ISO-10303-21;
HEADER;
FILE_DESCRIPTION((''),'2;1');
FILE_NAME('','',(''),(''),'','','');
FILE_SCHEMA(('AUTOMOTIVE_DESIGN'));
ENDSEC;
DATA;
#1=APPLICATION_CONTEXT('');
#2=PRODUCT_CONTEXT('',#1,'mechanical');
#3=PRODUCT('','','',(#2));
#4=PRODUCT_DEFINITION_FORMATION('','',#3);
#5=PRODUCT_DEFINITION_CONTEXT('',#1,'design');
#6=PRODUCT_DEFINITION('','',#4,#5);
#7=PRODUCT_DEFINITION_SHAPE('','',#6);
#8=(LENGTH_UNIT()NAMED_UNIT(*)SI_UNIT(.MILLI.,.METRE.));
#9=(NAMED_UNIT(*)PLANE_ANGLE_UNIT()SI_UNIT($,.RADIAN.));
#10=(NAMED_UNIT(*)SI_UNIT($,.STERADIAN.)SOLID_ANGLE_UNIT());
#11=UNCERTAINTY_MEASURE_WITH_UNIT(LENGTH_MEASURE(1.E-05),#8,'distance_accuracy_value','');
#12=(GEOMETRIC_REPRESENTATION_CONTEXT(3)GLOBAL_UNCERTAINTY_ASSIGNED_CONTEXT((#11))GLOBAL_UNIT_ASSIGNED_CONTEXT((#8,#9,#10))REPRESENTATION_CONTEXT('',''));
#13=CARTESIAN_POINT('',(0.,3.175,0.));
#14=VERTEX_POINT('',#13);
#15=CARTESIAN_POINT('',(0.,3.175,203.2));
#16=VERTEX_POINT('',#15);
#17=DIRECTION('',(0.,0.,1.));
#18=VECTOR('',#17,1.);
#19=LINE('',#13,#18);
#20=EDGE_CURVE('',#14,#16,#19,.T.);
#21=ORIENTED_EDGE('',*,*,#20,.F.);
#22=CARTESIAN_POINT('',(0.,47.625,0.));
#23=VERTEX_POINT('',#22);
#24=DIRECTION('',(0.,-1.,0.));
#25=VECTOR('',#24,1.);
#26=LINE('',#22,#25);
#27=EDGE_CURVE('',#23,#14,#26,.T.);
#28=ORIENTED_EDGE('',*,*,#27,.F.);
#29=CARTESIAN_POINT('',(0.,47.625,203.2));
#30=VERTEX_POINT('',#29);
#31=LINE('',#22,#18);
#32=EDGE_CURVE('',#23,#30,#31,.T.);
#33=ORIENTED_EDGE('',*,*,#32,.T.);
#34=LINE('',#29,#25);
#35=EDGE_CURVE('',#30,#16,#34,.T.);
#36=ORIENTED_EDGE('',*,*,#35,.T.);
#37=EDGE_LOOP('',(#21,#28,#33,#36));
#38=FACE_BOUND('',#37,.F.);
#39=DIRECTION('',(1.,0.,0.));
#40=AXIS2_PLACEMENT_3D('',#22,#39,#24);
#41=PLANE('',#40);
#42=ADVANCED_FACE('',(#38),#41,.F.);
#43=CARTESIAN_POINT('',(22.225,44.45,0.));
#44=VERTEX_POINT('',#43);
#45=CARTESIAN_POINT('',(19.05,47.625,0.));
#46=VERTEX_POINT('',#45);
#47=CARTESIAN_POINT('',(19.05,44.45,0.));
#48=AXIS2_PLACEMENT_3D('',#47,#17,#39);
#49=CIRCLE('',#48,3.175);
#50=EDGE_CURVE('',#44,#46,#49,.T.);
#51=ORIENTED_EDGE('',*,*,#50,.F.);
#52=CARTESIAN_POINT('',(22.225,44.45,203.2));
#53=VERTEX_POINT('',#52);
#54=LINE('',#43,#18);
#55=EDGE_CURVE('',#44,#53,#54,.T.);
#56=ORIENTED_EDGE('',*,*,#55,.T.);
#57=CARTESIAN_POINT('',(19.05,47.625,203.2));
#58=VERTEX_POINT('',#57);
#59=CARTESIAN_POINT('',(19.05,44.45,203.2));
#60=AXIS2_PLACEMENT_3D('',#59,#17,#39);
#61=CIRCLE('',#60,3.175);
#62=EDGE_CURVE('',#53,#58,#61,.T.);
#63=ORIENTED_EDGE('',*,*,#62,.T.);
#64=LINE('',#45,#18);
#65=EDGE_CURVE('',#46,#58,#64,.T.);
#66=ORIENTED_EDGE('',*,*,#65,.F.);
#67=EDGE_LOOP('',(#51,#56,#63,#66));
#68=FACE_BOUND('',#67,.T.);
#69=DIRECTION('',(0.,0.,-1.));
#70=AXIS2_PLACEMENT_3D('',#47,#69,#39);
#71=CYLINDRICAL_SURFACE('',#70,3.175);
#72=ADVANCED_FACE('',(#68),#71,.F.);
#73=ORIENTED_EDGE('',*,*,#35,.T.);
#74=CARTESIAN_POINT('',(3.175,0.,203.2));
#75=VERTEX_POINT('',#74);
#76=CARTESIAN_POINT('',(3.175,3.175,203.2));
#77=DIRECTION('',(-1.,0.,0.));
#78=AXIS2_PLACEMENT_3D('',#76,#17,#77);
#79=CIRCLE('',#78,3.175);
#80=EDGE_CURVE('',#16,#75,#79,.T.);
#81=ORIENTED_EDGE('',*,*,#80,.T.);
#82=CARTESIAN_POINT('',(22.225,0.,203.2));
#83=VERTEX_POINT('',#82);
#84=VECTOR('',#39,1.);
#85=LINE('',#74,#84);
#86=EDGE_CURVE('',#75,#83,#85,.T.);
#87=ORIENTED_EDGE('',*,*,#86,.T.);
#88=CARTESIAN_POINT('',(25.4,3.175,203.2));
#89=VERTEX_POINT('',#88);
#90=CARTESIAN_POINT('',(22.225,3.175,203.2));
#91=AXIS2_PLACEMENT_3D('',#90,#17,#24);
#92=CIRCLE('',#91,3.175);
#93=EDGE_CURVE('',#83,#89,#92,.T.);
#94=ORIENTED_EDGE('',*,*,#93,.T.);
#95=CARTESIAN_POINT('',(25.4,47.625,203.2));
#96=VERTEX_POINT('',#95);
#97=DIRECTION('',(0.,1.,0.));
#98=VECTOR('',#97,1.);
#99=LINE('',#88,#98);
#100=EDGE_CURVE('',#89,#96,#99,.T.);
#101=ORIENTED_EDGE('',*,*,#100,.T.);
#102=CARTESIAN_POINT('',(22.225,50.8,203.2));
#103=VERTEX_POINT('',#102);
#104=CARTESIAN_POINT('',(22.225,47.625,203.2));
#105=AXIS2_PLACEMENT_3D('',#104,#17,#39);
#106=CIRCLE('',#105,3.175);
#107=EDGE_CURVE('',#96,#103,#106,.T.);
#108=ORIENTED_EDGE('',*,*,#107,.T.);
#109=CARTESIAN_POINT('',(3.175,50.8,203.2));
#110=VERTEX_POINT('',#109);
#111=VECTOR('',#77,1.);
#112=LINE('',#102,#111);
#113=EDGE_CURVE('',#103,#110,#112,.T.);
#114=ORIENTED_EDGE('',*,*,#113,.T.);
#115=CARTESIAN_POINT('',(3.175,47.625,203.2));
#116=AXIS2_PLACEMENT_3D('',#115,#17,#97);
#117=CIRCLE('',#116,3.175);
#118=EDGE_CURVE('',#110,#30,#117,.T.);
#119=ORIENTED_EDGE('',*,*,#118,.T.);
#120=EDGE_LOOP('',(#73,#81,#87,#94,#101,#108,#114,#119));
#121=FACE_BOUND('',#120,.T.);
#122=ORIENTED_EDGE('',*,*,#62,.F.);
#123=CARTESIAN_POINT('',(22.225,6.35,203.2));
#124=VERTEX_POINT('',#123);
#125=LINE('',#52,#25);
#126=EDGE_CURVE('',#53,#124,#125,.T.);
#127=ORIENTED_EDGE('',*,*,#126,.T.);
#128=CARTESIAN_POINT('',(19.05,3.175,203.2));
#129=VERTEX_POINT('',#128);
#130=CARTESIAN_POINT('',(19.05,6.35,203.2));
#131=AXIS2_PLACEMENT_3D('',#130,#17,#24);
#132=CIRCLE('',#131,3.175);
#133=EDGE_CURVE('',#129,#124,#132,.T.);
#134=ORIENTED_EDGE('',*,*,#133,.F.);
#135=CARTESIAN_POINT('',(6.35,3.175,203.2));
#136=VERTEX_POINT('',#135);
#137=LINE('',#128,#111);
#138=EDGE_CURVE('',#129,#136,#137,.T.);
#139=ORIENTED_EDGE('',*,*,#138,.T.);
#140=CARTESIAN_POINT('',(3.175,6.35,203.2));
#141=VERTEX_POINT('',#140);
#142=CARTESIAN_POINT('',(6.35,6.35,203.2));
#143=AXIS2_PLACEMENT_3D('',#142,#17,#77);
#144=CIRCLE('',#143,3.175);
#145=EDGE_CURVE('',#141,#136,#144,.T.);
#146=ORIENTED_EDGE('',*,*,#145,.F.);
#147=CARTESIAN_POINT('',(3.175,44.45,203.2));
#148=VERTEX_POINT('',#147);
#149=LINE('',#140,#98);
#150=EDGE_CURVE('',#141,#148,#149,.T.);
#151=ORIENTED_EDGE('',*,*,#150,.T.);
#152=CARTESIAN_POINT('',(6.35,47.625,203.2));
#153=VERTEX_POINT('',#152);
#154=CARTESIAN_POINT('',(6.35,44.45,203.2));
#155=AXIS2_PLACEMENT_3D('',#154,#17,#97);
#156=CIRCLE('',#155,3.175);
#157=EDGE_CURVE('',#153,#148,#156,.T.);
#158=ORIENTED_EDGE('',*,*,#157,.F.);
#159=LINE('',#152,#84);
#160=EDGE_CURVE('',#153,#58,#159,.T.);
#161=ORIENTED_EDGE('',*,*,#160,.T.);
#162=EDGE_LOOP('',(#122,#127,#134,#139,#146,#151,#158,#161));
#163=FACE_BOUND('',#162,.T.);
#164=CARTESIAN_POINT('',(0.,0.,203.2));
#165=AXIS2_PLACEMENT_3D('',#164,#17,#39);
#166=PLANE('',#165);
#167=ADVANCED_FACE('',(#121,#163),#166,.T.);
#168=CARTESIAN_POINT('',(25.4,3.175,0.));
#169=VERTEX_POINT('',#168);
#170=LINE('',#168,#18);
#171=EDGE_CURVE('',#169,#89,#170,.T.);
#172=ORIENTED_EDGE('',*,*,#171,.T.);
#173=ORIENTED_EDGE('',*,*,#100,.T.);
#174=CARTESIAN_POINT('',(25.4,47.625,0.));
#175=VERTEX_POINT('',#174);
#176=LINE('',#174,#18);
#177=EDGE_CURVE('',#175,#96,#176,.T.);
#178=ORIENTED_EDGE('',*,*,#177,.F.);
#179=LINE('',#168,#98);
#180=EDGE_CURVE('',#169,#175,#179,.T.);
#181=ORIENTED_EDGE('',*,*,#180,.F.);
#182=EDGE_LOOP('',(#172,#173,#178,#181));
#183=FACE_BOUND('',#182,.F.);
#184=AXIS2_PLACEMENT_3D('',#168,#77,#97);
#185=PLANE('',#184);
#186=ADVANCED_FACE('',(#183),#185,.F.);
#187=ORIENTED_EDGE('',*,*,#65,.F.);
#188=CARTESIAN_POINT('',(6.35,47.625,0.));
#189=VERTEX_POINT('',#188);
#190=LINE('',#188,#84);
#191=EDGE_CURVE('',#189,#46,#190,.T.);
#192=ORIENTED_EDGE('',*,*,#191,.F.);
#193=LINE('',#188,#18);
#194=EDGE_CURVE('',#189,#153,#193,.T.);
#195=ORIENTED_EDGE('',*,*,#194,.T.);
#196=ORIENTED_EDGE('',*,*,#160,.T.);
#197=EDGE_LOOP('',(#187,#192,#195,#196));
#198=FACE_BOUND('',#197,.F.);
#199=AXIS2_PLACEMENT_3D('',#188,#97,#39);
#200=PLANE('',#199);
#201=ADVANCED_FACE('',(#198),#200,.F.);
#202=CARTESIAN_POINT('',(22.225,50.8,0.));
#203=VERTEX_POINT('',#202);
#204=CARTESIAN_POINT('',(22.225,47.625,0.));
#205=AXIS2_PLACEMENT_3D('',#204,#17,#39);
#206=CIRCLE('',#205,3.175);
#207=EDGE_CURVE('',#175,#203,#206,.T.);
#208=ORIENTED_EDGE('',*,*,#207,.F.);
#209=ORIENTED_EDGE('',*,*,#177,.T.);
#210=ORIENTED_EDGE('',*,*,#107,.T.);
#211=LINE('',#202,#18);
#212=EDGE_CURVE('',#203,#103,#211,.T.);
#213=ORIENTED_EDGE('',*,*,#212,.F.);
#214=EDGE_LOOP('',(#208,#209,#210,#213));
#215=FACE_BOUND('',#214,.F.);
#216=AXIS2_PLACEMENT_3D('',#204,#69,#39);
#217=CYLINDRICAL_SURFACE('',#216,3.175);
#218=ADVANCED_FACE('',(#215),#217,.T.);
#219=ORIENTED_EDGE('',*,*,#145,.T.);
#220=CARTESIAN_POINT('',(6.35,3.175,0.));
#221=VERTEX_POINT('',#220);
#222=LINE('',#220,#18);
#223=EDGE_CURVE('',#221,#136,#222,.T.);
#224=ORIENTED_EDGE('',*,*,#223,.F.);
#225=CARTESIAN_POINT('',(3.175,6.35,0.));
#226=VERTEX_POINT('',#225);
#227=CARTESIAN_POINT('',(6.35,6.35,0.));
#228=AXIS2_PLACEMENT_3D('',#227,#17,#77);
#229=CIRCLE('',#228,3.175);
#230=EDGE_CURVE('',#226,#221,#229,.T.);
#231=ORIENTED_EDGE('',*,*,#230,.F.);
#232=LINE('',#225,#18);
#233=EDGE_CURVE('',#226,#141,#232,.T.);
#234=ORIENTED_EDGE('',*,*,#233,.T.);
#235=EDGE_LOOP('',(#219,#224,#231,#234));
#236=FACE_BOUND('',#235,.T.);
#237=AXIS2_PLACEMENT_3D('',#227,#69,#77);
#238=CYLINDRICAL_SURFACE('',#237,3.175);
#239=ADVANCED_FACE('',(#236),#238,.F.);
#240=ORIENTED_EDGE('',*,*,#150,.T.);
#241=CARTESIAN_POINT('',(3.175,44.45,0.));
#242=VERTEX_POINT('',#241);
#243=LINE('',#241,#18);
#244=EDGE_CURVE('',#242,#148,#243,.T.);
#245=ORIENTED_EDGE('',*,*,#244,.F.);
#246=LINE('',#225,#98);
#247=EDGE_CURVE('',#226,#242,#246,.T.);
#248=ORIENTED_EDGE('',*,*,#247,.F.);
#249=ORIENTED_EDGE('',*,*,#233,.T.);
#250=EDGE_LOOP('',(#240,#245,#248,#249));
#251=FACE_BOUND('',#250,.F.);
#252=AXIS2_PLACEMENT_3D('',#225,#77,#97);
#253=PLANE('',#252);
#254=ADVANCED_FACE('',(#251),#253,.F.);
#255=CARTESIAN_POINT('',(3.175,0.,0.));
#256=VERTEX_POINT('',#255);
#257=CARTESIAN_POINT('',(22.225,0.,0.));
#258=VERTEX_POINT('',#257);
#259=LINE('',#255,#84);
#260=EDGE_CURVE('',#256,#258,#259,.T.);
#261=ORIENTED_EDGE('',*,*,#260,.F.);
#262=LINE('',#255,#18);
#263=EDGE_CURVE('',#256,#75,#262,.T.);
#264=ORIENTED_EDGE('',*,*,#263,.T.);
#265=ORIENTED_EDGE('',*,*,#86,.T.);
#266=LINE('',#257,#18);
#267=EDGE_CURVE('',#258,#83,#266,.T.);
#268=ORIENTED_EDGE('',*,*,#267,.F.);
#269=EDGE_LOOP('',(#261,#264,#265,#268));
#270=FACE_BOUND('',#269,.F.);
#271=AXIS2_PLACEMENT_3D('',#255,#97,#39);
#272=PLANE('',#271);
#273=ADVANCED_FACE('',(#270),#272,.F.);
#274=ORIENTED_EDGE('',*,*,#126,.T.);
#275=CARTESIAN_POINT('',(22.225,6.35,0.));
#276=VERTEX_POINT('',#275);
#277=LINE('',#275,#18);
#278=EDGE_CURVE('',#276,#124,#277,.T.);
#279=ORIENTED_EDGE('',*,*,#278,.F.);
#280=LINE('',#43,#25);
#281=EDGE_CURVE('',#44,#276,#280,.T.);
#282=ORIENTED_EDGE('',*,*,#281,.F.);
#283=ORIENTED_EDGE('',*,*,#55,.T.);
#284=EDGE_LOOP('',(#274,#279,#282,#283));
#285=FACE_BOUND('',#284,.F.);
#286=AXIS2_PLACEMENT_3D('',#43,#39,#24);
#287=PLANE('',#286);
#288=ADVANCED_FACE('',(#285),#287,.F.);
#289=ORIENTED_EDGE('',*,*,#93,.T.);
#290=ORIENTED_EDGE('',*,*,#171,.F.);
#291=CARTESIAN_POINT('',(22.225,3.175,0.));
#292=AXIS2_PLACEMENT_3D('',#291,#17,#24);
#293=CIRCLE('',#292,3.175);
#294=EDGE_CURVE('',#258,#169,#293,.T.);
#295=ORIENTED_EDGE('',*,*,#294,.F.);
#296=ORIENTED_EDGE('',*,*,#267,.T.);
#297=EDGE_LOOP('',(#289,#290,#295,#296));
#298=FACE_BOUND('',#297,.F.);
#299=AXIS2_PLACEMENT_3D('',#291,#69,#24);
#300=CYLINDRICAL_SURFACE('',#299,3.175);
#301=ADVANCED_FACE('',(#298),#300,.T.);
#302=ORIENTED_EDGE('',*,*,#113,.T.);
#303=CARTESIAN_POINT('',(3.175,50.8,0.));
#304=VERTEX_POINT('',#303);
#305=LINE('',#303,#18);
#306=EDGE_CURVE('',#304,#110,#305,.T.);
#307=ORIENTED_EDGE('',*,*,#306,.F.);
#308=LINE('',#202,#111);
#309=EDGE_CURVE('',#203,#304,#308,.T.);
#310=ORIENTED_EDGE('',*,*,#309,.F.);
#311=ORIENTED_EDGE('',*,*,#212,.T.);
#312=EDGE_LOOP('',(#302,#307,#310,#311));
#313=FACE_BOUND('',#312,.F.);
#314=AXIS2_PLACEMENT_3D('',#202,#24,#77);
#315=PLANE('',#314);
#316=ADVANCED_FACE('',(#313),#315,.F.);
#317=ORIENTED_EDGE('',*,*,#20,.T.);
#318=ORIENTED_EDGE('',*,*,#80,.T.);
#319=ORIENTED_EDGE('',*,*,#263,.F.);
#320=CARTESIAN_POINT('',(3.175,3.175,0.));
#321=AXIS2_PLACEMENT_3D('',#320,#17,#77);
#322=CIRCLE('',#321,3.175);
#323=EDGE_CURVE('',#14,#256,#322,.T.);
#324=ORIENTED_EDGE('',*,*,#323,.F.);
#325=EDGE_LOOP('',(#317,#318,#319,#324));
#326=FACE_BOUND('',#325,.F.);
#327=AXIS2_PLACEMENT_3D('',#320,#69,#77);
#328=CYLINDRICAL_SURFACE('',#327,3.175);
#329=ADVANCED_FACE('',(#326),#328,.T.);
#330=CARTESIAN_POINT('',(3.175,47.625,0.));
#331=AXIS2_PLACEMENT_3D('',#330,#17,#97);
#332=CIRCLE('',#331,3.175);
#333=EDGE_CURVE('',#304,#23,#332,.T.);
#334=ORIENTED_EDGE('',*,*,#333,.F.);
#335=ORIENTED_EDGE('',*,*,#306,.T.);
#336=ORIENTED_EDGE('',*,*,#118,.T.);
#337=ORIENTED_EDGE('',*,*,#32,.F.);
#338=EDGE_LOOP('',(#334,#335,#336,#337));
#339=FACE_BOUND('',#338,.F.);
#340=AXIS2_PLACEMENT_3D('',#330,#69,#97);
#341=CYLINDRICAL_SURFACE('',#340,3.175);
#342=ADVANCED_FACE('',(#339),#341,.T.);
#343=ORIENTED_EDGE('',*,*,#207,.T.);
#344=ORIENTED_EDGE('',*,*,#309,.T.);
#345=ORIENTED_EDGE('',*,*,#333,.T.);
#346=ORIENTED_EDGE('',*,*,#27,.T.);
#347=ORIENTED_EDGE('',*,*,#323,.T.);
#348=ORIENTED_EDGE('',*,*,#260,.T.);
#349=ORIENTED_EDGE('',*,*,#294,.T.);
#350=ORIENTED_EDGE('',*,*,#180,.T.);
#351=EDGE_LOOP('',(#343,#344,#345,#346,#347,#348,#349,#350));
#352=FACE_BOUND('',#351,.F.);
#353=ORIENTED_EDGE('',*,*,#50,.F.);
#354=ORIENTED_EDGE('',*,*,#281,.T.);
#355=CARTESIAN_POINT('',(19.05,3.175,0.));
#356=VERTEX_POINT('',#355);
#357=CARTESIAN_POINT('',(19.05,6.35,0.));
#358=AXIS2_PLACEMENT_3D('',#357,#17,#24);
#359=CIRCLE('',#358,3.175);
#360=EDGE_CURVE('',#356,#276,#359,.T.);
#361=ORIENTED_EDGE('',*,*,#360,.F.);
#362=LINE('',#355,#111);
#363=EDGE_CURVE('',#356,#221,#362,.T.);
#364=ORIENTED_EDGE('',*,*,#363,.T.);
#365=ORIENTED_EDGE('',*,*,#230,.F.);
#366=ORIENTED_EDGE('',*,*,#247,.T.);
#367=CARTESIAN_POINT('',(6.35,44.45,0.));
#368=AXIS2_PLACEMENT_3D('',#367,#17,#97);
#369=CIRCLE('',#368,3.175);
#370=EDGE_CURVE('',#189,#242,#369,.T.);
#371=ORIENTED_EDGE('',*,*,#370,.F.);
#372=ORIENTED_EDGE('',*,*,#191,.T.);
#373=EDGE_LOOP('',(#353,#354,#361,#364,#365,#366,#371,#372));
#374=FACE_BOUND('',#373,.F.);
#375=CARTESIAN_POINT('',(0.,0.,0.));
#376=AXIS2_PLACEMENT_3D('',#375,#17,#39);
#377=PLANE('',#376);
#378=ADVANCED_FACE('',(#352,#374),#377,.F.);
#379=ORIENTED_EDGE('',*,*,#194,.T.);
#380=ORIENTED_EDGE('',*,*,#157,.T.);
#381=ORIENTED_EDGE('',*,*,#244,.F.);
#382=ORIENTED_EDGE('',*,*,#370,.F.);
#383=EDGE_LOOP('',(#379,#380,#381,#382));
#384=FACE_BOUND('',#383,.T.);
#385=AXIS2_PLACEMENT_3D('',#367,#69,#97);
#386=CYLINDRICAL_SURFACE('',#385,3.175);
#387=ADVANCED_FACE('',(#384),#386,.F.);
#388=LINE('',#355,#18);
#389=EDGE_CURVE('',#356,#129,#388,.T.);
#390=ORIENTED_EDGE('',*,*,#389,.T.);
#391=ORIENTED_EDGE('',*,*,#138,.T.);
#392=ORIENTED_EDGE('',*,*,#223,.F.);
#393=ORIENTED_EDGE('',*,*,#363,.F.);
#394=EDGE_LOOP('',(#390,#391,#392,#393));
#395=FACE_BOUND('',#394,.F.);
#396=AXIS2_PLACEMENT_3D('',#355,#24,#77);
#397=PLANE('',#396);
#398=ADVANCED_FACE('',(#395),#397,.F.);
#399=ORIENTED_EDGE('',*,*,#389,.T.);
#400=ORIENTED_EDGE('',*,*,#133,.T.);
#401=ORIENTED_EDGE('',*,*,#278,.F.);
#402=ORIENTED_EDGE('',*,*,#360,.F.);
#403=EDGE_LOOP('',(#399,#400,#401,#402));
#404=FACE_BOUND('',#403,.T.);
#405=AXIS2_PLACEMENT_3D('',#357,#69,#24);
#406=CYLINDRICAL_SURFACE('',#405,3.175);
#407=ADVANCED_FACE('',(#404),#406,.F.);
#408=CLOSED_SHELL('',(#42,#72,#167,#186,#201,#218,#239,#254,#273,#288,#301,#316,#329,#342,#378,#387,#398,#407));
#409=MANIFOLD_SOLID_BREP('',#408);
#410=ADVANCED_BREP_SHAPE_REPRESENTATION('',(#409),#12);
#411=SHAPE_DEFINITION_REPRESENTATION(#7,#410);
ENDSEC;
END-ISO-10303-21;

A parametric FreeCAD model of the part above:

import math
import FreeCAD as App
import Part
import Sketcher
from FreeCAD import Vector
Q = App.Units.Quantity

doc = App.newDocument("Part")
params = doc.addObject("Spreadsheet::Sheet", "Params")
for row, (alias, value) in enumerate([
    ("sketch1_radius", "0.125 in"),
    ("pad1_length", "8 in"),
], start=1):
    params.set(f"A{row}", alias)
    params.set(f"B{row}", "=" + value)
    params.setAlias(f"B{row}", alias)

body = doc.addObject("PartDesign::Body", "Body")

# Sketch on XY plane
sketch1 = body.newObject("Sketcher::SketchObject", "Sketch")
sketch1.AttachmentSupport = (doc.getObject("XY_Plane"), [""])
sketch1.MapMode = "FlatFace"
sketch1.addGeometry(Part.ArcOfCircle(Part.Circle(Vector(3.2, 3.2, 0), Vector(0, 0, 1), 3.2), math.radians(180), math.radians(270)), False)
sketch1.addGeometry(Part.LineSegment(Vector(3.2, 0, 0), Vector(22.2, 0, 0)), False)
sketch1.addGeometry(Part.ArcOfCircle(Part.Circle(Vector(22.2, 3.2, 0), Vector(0, 0, 1), 3.2), math.radians(-90), math.radians(0)), False)
sketch1.addGeometry(Part.LineSegment(Vector(25.4, 3.2, 0), Vector(25.4, 47.6, 0)), False)
sketch1.addGeometry(Part.ArcOfCircle(Part.Circle(Vector(22.2, 47.6, 0), Vector(0, 0, 1), 3.2), math.radians(0), math.radians(90)), False)
sketch1.addGeometry(Part.LineSegment(Vector(22.2, 50.8, 0), Vector(3.2, 50.8, 0)), False)
sketch1.addGeometry(Part.ArcOfCircle(Part.Circle(Vector(3.2, 47.6, 0), Vector(0, 0, 1), 3.2), math.radians(90), math.radians(180)), False)
sketch1.addGeometry(Part.LineSegment(Vector(0, 47.6, 0), Vector(0, 3.2, 0)), False)
sketch1.addGeometry(Part.ArcOfCircle(Part.Circle(Vector(6.3, 44.5, 0), Vector(0, 0, 1), 3.2), math.radians(90), math.radians(180)), False)
sketch1.addGeometry(Part.LineSegment(Vector(6.3, 47.6, 0), Vector(19.1, 47.6, 0)), False)
sketch1.addGeometry(Part.ArcOfCircle(Part.Circle(Vector(19.1, 44.5, 0), Vector(0, 0, 1), 3.2), math.radians(0), math.radians(90)), False)
sketch1.addGeometry(Part.LineSegment(Vector(22.2, 44.5, 0), Vector(22.2, 6.3, 0)), False)
sketch1.addGeometry(Part.ArcOfCircle(Part.Circle(Vector(19.1, 6.3, 0), Vector(0, 0, 1), 3.2), math.radians(-90), math.radians(0)), False)
sketch1.addGeometry(Part.LineSegment(Vector(19.1, 3.2, 0), Vector(6.3, 3.2, 0)), False)
sketch1.addGeometry(Part.ArcOfCircle(Part.Circle(Vector(6.3, 6.3, 0), Vector(0, 0, 1), 3.2), math.radians(180), math.radians(270)), False)
sketch1.addGeometry(Part.LineSegment(Vector(3.2, 6.3, 0), Vector(3.2, 44.5, 0)), False)
sketch1.addConstraint(Sketcher.Constraint("Tangent", 0, 2, 1, 1))
sketch1.addConstraint(Sketcher.Constraint("Tangent", 1, 2, 2, 1))
sketch1.addConstraint(Sketcher.Constraint("Tangent", 2, 2, 3, 1))
sketch1.addConstraint(Sketcher.Constraint("Tangent", 3, 2, 4, 1))
sketch1.addConstraint(Sketcher.Constraint("Tangent", 4, 2, 5, 1))
sketch1.addConstraint(Sketcher.Constraint("Tangent", 5, 2, 6, 1))
sketch1.addConstraint(Sketcher.Constraint("Tangent", 6, 2, 7, 1))
sketch1.addConstraint(Sketcher.Constraint("Tangent", 7, 2, 0, 1))
sketch1.addConstraint(Sketcher.Constraint("Tangent", 8, 1, 9, 1))
sketch1.addConstraint(Sketcher.Constraint("Tangent", 9, 2, 10, 2))
sketch1.addConstraint(Sketcher.Constraint("Tangent", 10, 1, 11, 1))
sketch1.addConstraint(Sketcher.Constraint("Tangent", 11, 2, 12, 2))
sketch1.addConstraint(Sketcher.Constraint("Tangent", 12, 1, 13, 1))
sketch1.addConstraint(Sketcher.Constraint("Tangent", 13, 2, 14, 2))
sketch1.addConstraint(Sketcher.Constraint("Tangent", 14, 1, 15, 1))
sketch1.addConstraint(Sketcher.Constraint("Tangent", 15, 2, 8, 2))
sketch1.addConstraint(Sketcher.Constraint("Horizontal", 1))
sketch1.addConstraint(Sketcher.Constraint("Vertical", 3))
sketch1.addConstraint(Sketcher.Constraint("Horizontal", 5))
sketch1.addConstraint(Sketcher.Constraint("Vertical", 7))
sketch1.addConstraint(Sketcher.Constraint("Horizontal", 9))
sketch1.addConstraint(Sketcher.Constraint("Vertical", 11))
sketch1.addConstraint(Sketcher.Constraint("Horizontal", 13))
sketch1.addConstraint(Sketcher.Constraint("Vertical", 15))
sketch1.addConstraint(Sketcher.Constraint("Equal", 0, 2))
sketch1.addConstraint(Sketcher.Constraint("Equal", 2, 4))
sketch1.addConstraint(Sketcher.Constraint("Equal", 4, 6))
sketch1.addConstraint(Sketcher.Constraint("Equal", 6, 8))
sketch1.addConstraint(Sketcher.Constraint("Equal", 8, 10))
sketch1.addConstraint(Sketcher.Constraint("Equal", 10, 12))
sketch1.addConstraint(Sketcher.Constraint("Equal", 12, 14))
sketch1.addConstraint(Sketcher.Constraint("PointOnObject", 0, 2, -1))
sketch1.addConstraint(Sketcher.Constraint("PointOnObject", 6, 2, -2))
sketch1.addConstraint(Sketcher.Constraint("Horizontal", 6, 2, 8, 1))
sketch1.addConstraint(Sketcher.Constraint("Horizontal", 7, 2, 12, 1))
sketch1.addConstraint(Sketcher.Constraint("Vertical", 4, 2, 10, 1))
sketch1.addConstraint(Sketcher.Constraint("Vertical", 5, 2, 14, 1))
sketch1.addConstraint(Sketcher.Constraint("DistanceX", -1, 1, 2, 2, Q("1 in")))
sketch1.addConstraint(Sketcher.Constraint("DistanceY", -1, 1, 4, 2, Q("2 in")))
sketch1.addConstraint(Sketcher.Constraint("Radius", 0, Q("0.125 in")))
sketch1.setExpression("Constraints[39]", "Params.sketch1_radius")
pad1 = body.newObject("PartDesign::Pad", "Pad")
pad1.Profile = sketch1
pad1.setExpression("Length", "Params.pad1_length")

doc.recompute()
